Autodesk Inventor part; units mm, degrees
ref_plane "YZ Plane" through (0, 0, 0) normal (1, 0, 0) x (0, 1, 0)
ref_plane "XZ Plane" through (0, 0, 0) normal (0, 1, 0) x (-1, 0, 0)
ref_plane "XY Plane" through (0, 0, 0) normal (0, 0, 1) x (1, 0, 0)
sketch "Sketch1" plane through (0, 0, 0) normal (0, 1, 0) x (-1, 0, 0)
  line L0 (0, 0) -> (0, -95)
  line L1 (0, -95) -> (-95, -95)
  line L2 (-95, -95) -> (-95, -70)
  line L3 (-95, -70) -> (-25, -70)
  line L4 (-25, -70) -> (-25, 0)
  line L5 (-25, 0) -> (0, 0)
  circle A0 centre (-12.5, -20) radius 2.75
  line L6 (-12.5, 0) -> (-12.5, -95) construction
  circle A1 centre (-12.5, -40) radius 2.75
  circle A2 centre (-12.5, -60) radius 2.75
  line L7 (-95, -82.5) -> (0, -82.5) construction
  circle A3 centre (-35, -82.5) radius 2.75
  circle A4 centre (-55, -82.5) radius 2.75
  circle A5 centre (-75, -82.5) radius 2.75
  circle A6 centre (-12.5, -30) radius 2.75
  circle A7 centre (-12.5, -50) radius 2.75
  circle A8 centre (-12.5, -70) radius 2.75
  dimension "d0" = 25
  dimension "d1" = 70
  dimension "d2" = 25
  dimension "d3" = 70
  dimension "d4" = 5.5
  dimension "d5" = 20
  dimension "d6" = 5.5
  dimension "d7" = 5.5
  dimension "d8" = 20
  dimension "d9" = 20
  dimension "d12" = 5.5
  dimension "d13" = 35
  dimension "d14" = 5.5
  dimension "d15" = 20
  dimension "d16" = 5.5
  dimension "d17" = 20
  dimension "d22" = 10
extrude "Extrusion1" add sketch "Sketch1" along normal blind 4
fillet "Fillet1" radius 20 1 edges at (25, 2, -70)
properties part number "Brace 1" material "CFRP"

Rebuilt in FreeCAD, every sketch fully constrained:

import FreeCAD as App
import Part
import Sketcher


def edges_at(feature, points):
    """Names of the edges that pass closest to the given points."""
    edges = feature.Shape.Edges
    near = lambda p: min(range(len(edges)), key=lambda i: edges[i].distToShape(Part.Vertex(*p))[0])
    return sorted({f"Edge{near(p) + 1}" for p in points})


def add_polygon(sketch, points):
    """Adds a closed chain of lines whose ends are joined by coincident constraints."""
    first, n = sketch.GeometryCount, len(points)
    for a, b in zip(points, points[1:] + points[:1]):
        sketch.addGeometry(Part.LineSegment(App.Vector(*a, 0), App.Vector(*b, 0)), False)
    for i in range(n):
        sketch.addConstraint(Sketcher.Constraint("Coincident", first + i, 2, first + (i + 1) % n, 1))

doc = App.newDocument("Part")
body = doc.addObject("PartDesign::Body", "Body")

# Sketch on XZ plane
sketch1 = body.newObject("Sketcher::SketchObject", "Sketch")
sketch1.AttachmentSupport = (doc.getObject("XZ_Plane"), [""])
sketch1.MapMode = "FlatFace"
add_polygon(sketch1, [(0, -95), (0, 0), (25, 0), (25, -70), (95, -70), (95, -95)])  # lines 0-5
sketch1.addGeometry(Part.Circle(App.Vector(75, -82.5, 0), App.Vector(0, 0, 1), 2.75), False)  # 6
sketch1.addGeometry(Part.Circle(App.Vector(55, -82.5, 0), App.Vector(0, 0, 1), 2.75), False)  # 7
sketch1.addGeometry(Part.Circle(App.Vector(35, -82.5, 0), App.Vector(0, 0, 1), 2.75), False)  # 8
sketch1.addGeometry(Part.Circle(App.Vector(12.5, -70, 0), App.Vector(0, 0, 1), 2.75), False)  # 9
sketch1.addGeometry(Part.Circle(App.Vector(12.5, -60, 0), App.Vector(0, 0, 1), 2.75), False)  # 10
sketch1.addGeometry(Part.Circle(App.Vector(12.5, -50, 0), App.Vector(0, 0, 1), 2.75), False)  # 11
sketch1.addGeometry(Part.Circle(App.Vector(12.5, -40, 0), App.Vector(0, 0, 1), 2.75), False)  # 12
sketch1.addGeometry(Part.Circle(App.Vector(12.5, -30, 0), App.Vector(0, 0, 1), 2.75), False)  # 13
sketch1.addGeometry(Part.Circle(App.Vector(12.5, -20, 0), App.Vector(0, 0, 1), 2.75), False)  # 14
sketch1.addConstraint(Sketcher.Constraint("Vertical", 0))
sketch1.addConstraint(Sketcher.Constraint("Horizontal", 1))
sketch1.addConstraint(Sketcher.Constraint("Vertical", 2))
sketch1.addConstraint(Sketcher.Constraint("Horizontal", 3))
sketch1.addConstraint(Sketcher.Constraint("Vertical", 4))
sketch1.addConstraint(Sketcher.Constraint("Horizontal", 5))
sketch1.addConstraint(Sketcher.Constraint("Coincident", 0, 2, -1, 1))
sketch1.addConstraint(Sketcher.Constraint("Equal", 6, 7))
sketch1.addConstraint(Sketcher.Constraint("Equal", 7, 8))
sketch1.addConstraint(Sketcher.Constraint("Equal", 8, 9))
sketch1.addConstraint(Sketcher.Constraint("Equal", 9, 10))
sketch1.addConstraint(Sketcher.Constraint("Equal", 10, 11))
sketch1.addConstraint(Sketcher.Constraint("Equal", 11, 12))
sketch1.addConstraint(Sketcher.Constraint("Equal", 12, 13))
sketch1.addConstraint(Sketcher.Constraint("Equal", 13, 14))
sketch1.addConstraint(Sketcher.Constraint("Horizontal", 6, 3, 7, 3))
sketch1.addConstraint(Sketcher.Constraint("Horizontal", 7, 3, 8, 3))
sketch1.addConstraint(Sketcher.Constraint("Horizontal", 9, 3, 2, 2))
sketch1.addConstraint(Sketcher.Constraint("Vertical", 9, 3, 10, 3))
sketch1.addConstraint(Sketcher.Constraint("Vertical", 10, 3, 11, 3))
sketch1.addConstraint(Sketcher.Constraint("Vertical", 11, 3, 12, 3))
sketch1.addConstraint(Sketcher.Constraint("Vertical", 12, 3, 13, 3))
sketch1.addConstraint(Sketcher.Constraint("Vertical", 13, 3, 14, 3))
sketch1.addConstraint(Sketcher.Constraint("Equal", 5, 0))
sketch1.addConstraint(Sketcher.Constraint("Equal", 3, 2))
sketch1.addConstraint(Sketcher.Constraint("Diameter", 6, 5.5))
sketch1.addConstraint(Sketcher.Constraint("DistanceX", 1, 1, 1, 2, 25.0))
sketch1.addConstraint(Sketcher.Constraint("DistanceX", 3, 1, 3, 2, 70.0))
sketch1.addConstraint(Sketcher.Constraint("DistanceX", -1, 1, 8, 3, 35.0))
sketch1.addConstraint(Sketcher.Constraint("DistanceY", 14, 3, -1, 1, 20.0))
sketch1.addConstraint(Sketcher.Constraint("DistanceX", 7, 3, 6, 3, 20.0))
sketch1.addConstraint(Sketcher.Constraint("DistanceX", 8, 3, 7, 3, 20.0))
sketch1.addConstraint(Sketcher.Constraint("DistanceY", 9, 3, 10, 3, 10.0))
sketch1.addConstraint(Sketcher.Constraint("DistanceY", 10, 3, 11, 3, 10.0))
sketch1.addConstraint(Sketcher.Constraint("DistanceY", 11, 3, 12, 3, 10.0))
sketch1.addConstraint(Sketcher.Constraint("DistanceY", 12, 3, 13, 3, 10.0))
sketch1.addConstraint(Sketcher.Constraint("DistanceY", 6, 3, -1, 1, 82.5))
sketch1.addConstraint(Sketcher.Constraint("DistanceX", -1, 1, 9, 3, 12.5))
pad1 = body.newObject("PartDesign::Pad", "Pad")
pad1.Profile = sketch1
pad1.Length = 4
pad1.Reversed = True
doc.recompute()

fillet = body.newObject("PartDesign::Fillet", "Fillet")
fillet.Base = (pad1, edges_at(pad1, [(25, 2, -70)]))
fillet.Radius = 20

doc.recompute()
